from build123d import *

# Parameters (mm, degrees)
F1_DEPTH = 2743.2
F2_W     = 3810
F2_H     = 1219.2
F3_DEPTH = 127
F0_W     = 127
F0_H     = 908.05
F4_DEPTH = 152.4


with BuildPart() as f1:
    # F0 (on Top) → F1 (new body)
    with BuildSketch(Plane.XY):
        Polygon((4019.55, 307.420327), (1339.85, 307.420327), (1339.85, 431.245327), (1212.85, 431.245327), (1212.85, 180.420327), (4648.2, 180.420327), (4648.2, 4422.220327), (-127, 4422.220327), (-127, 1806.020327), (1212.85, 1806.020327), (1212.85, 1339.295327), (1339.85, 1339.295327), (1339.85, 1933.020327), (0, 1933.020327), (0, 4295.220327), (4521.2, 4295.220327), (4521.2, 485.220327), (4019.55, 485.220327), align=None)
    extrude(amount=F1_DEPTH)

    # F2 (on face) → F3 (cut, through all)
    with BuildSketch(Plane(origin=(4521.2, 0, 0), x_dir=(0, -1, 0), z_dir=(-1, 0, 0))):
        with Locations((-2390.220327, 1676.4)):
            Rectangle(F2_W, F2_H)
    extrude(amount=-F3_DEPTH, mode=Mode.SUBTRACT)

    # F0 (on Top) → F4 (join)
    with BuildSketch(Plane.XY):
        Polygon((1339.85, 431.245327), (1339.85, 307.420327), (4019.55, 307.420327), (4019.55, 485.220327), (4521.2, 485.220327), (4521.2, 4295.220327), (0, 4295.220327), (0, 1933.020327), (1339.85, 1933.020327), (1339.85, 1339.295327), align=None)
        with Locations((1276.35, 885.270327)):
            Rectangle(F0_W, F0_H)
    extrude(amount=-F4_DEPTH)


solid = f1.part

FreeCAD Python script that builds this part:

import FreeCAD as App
import Part
import Sketcher
from FreeCAD import Vector
Q = App.Units.Quantity

doc = App.newDocument("Part")
body = doc.addObject("PartDesign::Body", "Body")
body.AllowCompound = True

# Sketch on XY plane
sketch1 = doc.addObject("Sketcher::SketchObject", "Sketch")
body.addObject(sketch1)
sketch1.AttachmentSupport = (doc.XY_Plane, [""])
sketch1.MapMode = "FlatFace"
sketch1.addGeometry(Part.LineSegment(Vector(4020, 307, 0), Vector(1340, 307, 0)), False)
sketch1.addGeometry(Part.LineSegment(Vector(1340, 307, 0), Vector(1340, 431, 0)), False)
sketch1.addGeometry(Part.LineSegment(Vector(1340, 431, 0), Vector(1213, 431, 0)), False)
sketch1.addGeometry(Part.LineSegment(Vector(1213, 431, 0), Vector(1213, 180, 0)), False)
sketch1.addGeometry(Part.LineSegment(Vector(1213, 180, 0), Vector(4648, 180, 0)), False)
sketch1.addGeometry(Part.LineSegment(Vector(4648, 180, 0), Vector(4648, 4422, 0)), False)
sketch1.addGeometry(Part.LineSegment(Vector(4648, 4422, 0), Vector(-127, 4422, 0)), False)
sketch1.addGeometry(Part.LineSegment(Vector(-127, 4422, 0), Vector(-127, 1806, 0)), False)
sketch1.addGeometry(Part.LineSegment(Vector(-127, 1806, 0), Vector(1213, 1806, 0)), False)
sketch1.addGeometry(Part.LineSegment(Vector(1213, 1806, 0), Vector(1213, 1339, 0)), False)
sketch1.addGeometry(Part.LineSegment(Vector(1213, 1339, 0), Vector(1340, 1339, 0)), False)
sketch1.addGeometry(Part.LineSegment(Vector(1340, 1339, 0), Vector(1340, 1933, 0)), False)
sketch1.addGeometry(Part.LineSegment(Vector(1340, 1933, 0), Vector(0, 1933, 0)), False)
sketch1.addGeometry(Part.LineSegment(Vector(0, 1933, 0), Vector(0, 4295, 0)), False)
sketch1.addGeometry(Part.LineSegment(Vector(0, 4295, 0), Vector(4521, 4295, 0)), False)
sketch1.addGeometry(Part.LineSegment(Vector(4521, 4295, 0), Vector(4521, 485, 0)), False)
sketch1.addGeometry(Part.LineSegment(Vector(4521, 485, 0), Vector(4020, 485, 0)), False)
sketch1.addGeometry(Part.LineSegment(Vector(4020, 485, 0), Vector(4020, 307, 0)), False)
sketch1.addConstraint(Sketcher.Constraint("Coincident", 0, 2, 1, 1))
sketch1.addConstraint(Sketcher.Constraint("Coincident", 1, 2, 2, 1))
sketch1.addConstraint(Sketcher.Constraint("Coincident", 2, 2, 3, 1))
sketch1.addConstraint(Sketcher.Constraint("Coincident", 3, 2, 4, 1))
sketch1.addConstraint(Sketcher.Constraint("Coincident", 4, 2, 5, 1))
sketch1.addConstraint(Sketcher.Constraint("Coincident", 5, 2, 6, 1))
sketch1.addConstraint(Sketcher.Constraint("Coincident", 6, 2, 7, 1))
sketch1.addConstraint(Sketcher.Constraint("Coincident", 7, 2, 8, 1))
sketch1.addConstraint(Sketcher.Constraint("Coincident", 8, 2, 9, 1))
sketch1.addConstraint(Sketcher.Constraint("Coincident", 9, 2, 10, 1))
sketch1.addConstraint(Sketcher.Constraint("Coincident", 10, 2, 11, 1))
sketch1.addConstraint(Sketcher.Constraint("Coincident", 11, 2, 12, 1))
sketch1.addConstraint(Sketcher.Constraint("Coincident", 12, 2, 13, 1))
sketch1.addConstraint(Sketcher.Constraint("Coincident", 13, 2, 14, 1))
sketch1.addConstraint(Sketcher.Constraint("Coincident", 14, 2, 15, 1))
sketch1.addConstraint(Sketcher.Constraint("Coincident", 15, 2, 16, 1))
sketch1.addConstraint(Sketcher.Constraint("Coincident", 16, 2, 17, 1))
sketch1.addConstraint(Sketcher.Constraint("Coincident", 17, 2, 0, 1))
sketch1.addConstraint(Sketcher.Constraint("Horizontal", 0))
sketch1.addConstraint(Sketcher.Constraint("Vertical", 1))
sketch1.addConstraint(Sketcher.Constraint("Horizontal", 2))
sketch1.addConstraint(Sketcher.Constraint("Vertical", 3))
sketch1.addConstraint(Sketcher.Constraint("Horizontal", 4))
sketch1.addConstraint(Sketcher.Constraint("Vertical", 5))
sketch1.addConstraint(Sketcher.Constraint("Horizontal", 6))
sketch1.addConstraint(Sketcher.Constraint("Vertical", 7))
sketch1.addConstraint(Sketcher.Constraint("Horizontal", 8))
sketch1.addConstraint(Sketcher.Constraint("Vertical", 9))
sketch1.addConstraint(Sketcher.Constraint("Horizontal", 10))
sketch1.addConstraint(Sketcher.Constraint("Vertical", 11))
sketch1.addConstraint(Sketcher.Constraint("Horizontal", 12))
sketch1.addConstraint(Sketcher.Constraint("Vertical", 13))
sketch1.addConstraint(Sketcher.Constraint("Horizontal", 14))
sketch1.addConstraint(Sketcher.Constraint("Vertical", 15))
sketch1.addConstraint(Sketcher.Constraint("Horizontal", 16))
sketch1.addConstraint(Sketcher.Constraint("Vertical", 17))
sketch1.addConstraint(Sketcher.Constraint("PointOnObject", 12, 2, -2))
sketch1.addConstraint(Sketcher.Constraint("Vertical", 3, 2, 8, 2))
sketch1.addConstraint(Sketcher.Constraint("Vertical", 1, 2, 10, 2))
sketch1.addConstraint(Sketcher.Constraint("Equal", 8, 12))
sketch1.addConstraint(Sketcher.Constraint("DistanceX", 2, 2, 2, 1, Q("5 in")))
sketch1.addConstraint(Sketcher.Constraint("DistanceX", 6, 2, 6, 1, Q("188 in")))
sketch1.addConstraint(Sketcher.Constraint("DistanceX", 14, 1, 14, 2, Q("178 in")))
sketch1.addConstraint(Sketcher.Constraint("DistanceY", 5, 1, 5, 2, Q("167 in")))
sketch1.addConstraint(Sketcher.Constraint("DistanceY", 7, 2, 7, 1, Q("103 in")))
sketch1.addConstraint(Sketcher.Constraint("DistanceY", 13, 1, 13, 2, Q("93 in")))
sketch1.addConstraint(Sketcher.Constraint("DistanceY", 15, 2, 15, 1, Q("150 in")))
sketch1.addConstraint(Sketcher.Constraint("DistanceY", 17, 2, 17, 1, Q("7 in")))
sketch1.addConstraint(Sketcher.Constraint("DistanceX", 0, 2, 0, 1, Q("105.5 in")))
sketch1.addConstraint(Sketcher.Constraint("DistanceY", 3, 2, 0, 2, Q("5 in")))
sketch1.addConstraint(Sketcher.Constraint("DistanceX", 4, 1, 4, 2, Q("135.25 in")))
sketch1.addConstraint(Sketcher.Constraint("DistanceY", 1, 1, 1, 2, Q("4.875 in")))
sketch1.addConstraint(Sketcher.Constraint("DistanceY", 9, 2, 9, 1, Q("18.375 in")))
sketch1.addConstraint(Sketcher.Constraint("DistanceY", -1, 1, 0, 2, Q("307.420327 mm")))
pad1 = doc.addObject("PartDesign::Pad", "Pad")
body.addObject(pad1)
pad1.Profile = sketch1
pad1.Length = Q("108 in")

# Sketch on YZ plane
sketch2 = doc.addObject("Sketcher::SketchObject", "Sketch001")
body.addObject(sketch2)
sketch2.AttachmentSupport = (doc.YZ_Plane, [""])
sketch2.MapMode = "FlatFace"
sketch2.AttachmentOffset = App.Placement(Vector(0, 0, 178 * 25.4), App.Rotation())
sketch2.addGeometry(Part.LineSegment(Vector(4295, 2286, 0), Vector(4295, 1067, 0)), False)
sketch2.addGeometry(Part.LineSegment(Vector(4295, 1067, 0), Vector(485, 1067, 0)), False)
sketch2.addGeometry(Part.LineSegment(Vector(485, 1067, 0), Vector(485, 2286, 0)), False)
sketch2.addGeometry(Part.LineSegment(Vector(485, 2286, 0), Vector(4295, 2286, 0)), False)
sketch2.addConstraint(Sketcher.Constraint("Coincident", 0, 2, 1, 1))
sketch2.addConstraint(Sketcher.Constraint("Coincident", 1, 2, 2, 1))
sketch2.addConstraint(Sketcher.Constraint("Coincident", 2, 2, 3, 1))
sketch2.addConstraint(Sketcher.Constraint("Coincident", 3, 2, 0, 1))
sketch2.addConstraint(Sketcher.Constraint("Vertical", 0))
sketch2.addConstraint(Sketcher.Constraint("Horizontal", 1))
sketch2.addConstraint(Sketcher.Constraint("Vertical", 2))
sketch2.addConstraint(Sketcher.Constraint("Horizontal", 3))
sketch2.addConstraint(Sketcher.Constraint("DistanceX", 1, 2, 1, 1, Q("150 in")))
sketch2.addConstraint(Sketcher.Constraint("DistanceY", 0, 2, 0, 1, Q("48 in")))
sketch2.addConstraint(Sketcher.Constraint("DistanceY", -1, 1, 0, 2, Q("42 in")))
sketch2.addConstraint(Sketcher.Constraint("DistanceX", -1, 1, 0, 2, Q("4295.220327 mm")))
pocket1 = doc.addObject("PartDesign::Pocket", "Pocket")
body.addObject(pocket1)
pocket1.Profile = sketch2
pocket1.Type = "ThroughAll"
pocket1.Reversed = True

# Sketch on XY plane
sketch3 = doc.addObject("Sketcher::SketchObject", "Sketch002")
body.addObject(sketch3)
sketch3.AttachmentSupport = (doc.XY_Plane, [""])
sketch3.MapMode = "FlatFace"
sketch3.addGeometry(Part.LineSegment(Vector(1340, 307, 0), Vector(4020, 307, 0)), False)
sketch3.addGeometry(Part.LineSegment(Vector(4020, 307, 0), Vector(4020, 485, 0)), False)
sketch3.addGeometry(Part.LineSegment(Vector(4020, 485, 0), Vector(4521, 485, 0)), False)
sketch3.addGeometry(Part.LineSegment(Vector(4521, 485, 0), Vector(4521, 4295, 0)), False)
sketch3.addGeometry(Part.LineSegment(Vector(4521, 4295, 0), Vector(0, 4295, 0)), False)
sketch3.addGeometry(Part.LineSegment(Vector(0, 4295, 0), Vector(0, 1933, 0)), False)
sketch3.addGeometry(Part.LineSegment(Vector(0, 1933, 0), Vector(1340, 1933, 0)), False)
sketch3.addGeometry(Part.LineSegment(Vector(1340, 1933, 0), Vector(1340, 1339, 0)), False)
sketch3.addGeometry(Part.LineSegment(Vector(1340, 1339, 0), Vector(1213, 1339, 0)), False)
sketch3.addGeometry(Part.LineSegment(Vector(1213, 1339, 0), Vector(1213, 431, 0)), False)
sketch3.addGeometry(Part.LineSegment(Vector(1213, 431, 0), Vector(1340, 431, 0)), False)
sketch3.addGeometry(Part.LineSegment(Vector(1340, 431, 0), Vector(1340, 307, 0)), False)
sketch3.addConstraint(Sketcher.Constraint("Coincident", 0, 2, 1, 1))
sketch3.addConstraint(Sketcher.Constraint("Coincident", 1, 2, 2, 1))
sketch3.addConstraint(Sketcher.Constraint("Coincident", 2, 2, 3, 1))
sketch3.addConstraint(Sketcher.Constraint("Coincident", 3, 2, 4, 1))
sketch3.addConstraint(Sketcher.Constraint("Coincident", 4, 2, 5, 1))
sketch3.addConstraint(Sketcher.Constraint("Coincident", 5, 2, 6, 1))
sketch3.addConstraint(Sketcher.Constraint("Coincident", 6, 2, 7, 1))
sketch3.addConstraint(Sketcher.Constraint("Coincident", 7, 2, 8, 1))
sketch3.addConstraint(Sketcher.Constraint("Coincident", 8, 2, 9, 1))
sketch3.addConstraint(Sketcher.Constraint("Coincident", 9, 2, 10, 1))
sketch3.addConstraint(Sketcher.Constraint("Coincident", 10, 2, 11, 1))
sketch3.addConstraint(Sketcher.Constraint("Coincident", 11, 2, 0, 1))
sketch3.addConstraint(Sketcher.Constraint("Horizontal", 0))
sketch3.addConstraint(Sketcher.Constraint("Vertical", 1))
sketch3.addConstraint(Sketcher.Constraint("Horizontal", 2))
sketch3.addConstraint(Sketcher.Constraint("Vertical", 3))
sketch3.addConstraint(Sketcher.Constraint("Horizontal", 4))
sketch3.addConstraint(Sketcher.Constraint("Vertical", 5))
sketch3.addConstraint(Sketcher.Constraint("Horizontal", 6))
sketch3.addConstraint(Sketcher.Constraint("Vertical", 7))
sketch3.addConstraint(Sketcher.Constraint("Horizontal", 8))
sketch3.addConstraint(Sketcher.Constraint("Vertical", 9))
sketch3.addConstraint(Sketcher.Constraint("Horizontal", 10))
sketch3.addConstraint(Sketcher.Constraint("Vertical", 11))
sketch3.addConstraint(Sketcher.Constraint("PointOnObject", 4, 2, -2))
sketch3.addConstraint(Sketcher.Constraint("Vertical", 7, 2, 10, 2))
sketch3.addConstraint(Sketcher.Constraint("DistanceX", 4, 2, 4, 1, Q("178 in")))
sketch3.addConstraint(Sketcher.Constraint("DistanceX", 8, 2, 8, 1, Q("5 in")))
sketch3.addConstraint(Sketcher.Constraint("DistanceY", 1, 1, 1, 2, Q("7 in")))
sketch3.addConstraint(Sketcher.Constraint("DistanceY", 3, 1, 3, 2, Q("150 in")))
sketch3.addConstraint(Sketcher.Constraint("DistanceY", 5, 2, 5, 1, Q("93 in")))
sketch3.addConstraint(Sketcher.Constraint("DistanceX", 0, 1, 0, 2, Q("105.5 in")))
sketch3.addConstraint(Sketcher.Constraint("DistanceX", 2, 1, 2, 2, Q("19.75 in")))
sketch3.addConstraint(Sketcher.Constraint("DistanceY", 9, 2, 9, 1, Q("35.75 in")))
sketch3.addConstraint(Sketcher.Constraint("DistanceY", 7, 2, 7, 1, Q("23.375 in")))
sketch3.addConstraint(Sketcher.Constraint("DistanceY", -1, 1, 0, 2, Q("307.420327 mm")))
pad2 = doc.addObject("PartDesign::Pad", "Pad001")
body.addObject(pad2)
pad2.Profile = sketch3
pad2.Length = Q("6 in")
pad2.Reversed = True

doc.recompute()
